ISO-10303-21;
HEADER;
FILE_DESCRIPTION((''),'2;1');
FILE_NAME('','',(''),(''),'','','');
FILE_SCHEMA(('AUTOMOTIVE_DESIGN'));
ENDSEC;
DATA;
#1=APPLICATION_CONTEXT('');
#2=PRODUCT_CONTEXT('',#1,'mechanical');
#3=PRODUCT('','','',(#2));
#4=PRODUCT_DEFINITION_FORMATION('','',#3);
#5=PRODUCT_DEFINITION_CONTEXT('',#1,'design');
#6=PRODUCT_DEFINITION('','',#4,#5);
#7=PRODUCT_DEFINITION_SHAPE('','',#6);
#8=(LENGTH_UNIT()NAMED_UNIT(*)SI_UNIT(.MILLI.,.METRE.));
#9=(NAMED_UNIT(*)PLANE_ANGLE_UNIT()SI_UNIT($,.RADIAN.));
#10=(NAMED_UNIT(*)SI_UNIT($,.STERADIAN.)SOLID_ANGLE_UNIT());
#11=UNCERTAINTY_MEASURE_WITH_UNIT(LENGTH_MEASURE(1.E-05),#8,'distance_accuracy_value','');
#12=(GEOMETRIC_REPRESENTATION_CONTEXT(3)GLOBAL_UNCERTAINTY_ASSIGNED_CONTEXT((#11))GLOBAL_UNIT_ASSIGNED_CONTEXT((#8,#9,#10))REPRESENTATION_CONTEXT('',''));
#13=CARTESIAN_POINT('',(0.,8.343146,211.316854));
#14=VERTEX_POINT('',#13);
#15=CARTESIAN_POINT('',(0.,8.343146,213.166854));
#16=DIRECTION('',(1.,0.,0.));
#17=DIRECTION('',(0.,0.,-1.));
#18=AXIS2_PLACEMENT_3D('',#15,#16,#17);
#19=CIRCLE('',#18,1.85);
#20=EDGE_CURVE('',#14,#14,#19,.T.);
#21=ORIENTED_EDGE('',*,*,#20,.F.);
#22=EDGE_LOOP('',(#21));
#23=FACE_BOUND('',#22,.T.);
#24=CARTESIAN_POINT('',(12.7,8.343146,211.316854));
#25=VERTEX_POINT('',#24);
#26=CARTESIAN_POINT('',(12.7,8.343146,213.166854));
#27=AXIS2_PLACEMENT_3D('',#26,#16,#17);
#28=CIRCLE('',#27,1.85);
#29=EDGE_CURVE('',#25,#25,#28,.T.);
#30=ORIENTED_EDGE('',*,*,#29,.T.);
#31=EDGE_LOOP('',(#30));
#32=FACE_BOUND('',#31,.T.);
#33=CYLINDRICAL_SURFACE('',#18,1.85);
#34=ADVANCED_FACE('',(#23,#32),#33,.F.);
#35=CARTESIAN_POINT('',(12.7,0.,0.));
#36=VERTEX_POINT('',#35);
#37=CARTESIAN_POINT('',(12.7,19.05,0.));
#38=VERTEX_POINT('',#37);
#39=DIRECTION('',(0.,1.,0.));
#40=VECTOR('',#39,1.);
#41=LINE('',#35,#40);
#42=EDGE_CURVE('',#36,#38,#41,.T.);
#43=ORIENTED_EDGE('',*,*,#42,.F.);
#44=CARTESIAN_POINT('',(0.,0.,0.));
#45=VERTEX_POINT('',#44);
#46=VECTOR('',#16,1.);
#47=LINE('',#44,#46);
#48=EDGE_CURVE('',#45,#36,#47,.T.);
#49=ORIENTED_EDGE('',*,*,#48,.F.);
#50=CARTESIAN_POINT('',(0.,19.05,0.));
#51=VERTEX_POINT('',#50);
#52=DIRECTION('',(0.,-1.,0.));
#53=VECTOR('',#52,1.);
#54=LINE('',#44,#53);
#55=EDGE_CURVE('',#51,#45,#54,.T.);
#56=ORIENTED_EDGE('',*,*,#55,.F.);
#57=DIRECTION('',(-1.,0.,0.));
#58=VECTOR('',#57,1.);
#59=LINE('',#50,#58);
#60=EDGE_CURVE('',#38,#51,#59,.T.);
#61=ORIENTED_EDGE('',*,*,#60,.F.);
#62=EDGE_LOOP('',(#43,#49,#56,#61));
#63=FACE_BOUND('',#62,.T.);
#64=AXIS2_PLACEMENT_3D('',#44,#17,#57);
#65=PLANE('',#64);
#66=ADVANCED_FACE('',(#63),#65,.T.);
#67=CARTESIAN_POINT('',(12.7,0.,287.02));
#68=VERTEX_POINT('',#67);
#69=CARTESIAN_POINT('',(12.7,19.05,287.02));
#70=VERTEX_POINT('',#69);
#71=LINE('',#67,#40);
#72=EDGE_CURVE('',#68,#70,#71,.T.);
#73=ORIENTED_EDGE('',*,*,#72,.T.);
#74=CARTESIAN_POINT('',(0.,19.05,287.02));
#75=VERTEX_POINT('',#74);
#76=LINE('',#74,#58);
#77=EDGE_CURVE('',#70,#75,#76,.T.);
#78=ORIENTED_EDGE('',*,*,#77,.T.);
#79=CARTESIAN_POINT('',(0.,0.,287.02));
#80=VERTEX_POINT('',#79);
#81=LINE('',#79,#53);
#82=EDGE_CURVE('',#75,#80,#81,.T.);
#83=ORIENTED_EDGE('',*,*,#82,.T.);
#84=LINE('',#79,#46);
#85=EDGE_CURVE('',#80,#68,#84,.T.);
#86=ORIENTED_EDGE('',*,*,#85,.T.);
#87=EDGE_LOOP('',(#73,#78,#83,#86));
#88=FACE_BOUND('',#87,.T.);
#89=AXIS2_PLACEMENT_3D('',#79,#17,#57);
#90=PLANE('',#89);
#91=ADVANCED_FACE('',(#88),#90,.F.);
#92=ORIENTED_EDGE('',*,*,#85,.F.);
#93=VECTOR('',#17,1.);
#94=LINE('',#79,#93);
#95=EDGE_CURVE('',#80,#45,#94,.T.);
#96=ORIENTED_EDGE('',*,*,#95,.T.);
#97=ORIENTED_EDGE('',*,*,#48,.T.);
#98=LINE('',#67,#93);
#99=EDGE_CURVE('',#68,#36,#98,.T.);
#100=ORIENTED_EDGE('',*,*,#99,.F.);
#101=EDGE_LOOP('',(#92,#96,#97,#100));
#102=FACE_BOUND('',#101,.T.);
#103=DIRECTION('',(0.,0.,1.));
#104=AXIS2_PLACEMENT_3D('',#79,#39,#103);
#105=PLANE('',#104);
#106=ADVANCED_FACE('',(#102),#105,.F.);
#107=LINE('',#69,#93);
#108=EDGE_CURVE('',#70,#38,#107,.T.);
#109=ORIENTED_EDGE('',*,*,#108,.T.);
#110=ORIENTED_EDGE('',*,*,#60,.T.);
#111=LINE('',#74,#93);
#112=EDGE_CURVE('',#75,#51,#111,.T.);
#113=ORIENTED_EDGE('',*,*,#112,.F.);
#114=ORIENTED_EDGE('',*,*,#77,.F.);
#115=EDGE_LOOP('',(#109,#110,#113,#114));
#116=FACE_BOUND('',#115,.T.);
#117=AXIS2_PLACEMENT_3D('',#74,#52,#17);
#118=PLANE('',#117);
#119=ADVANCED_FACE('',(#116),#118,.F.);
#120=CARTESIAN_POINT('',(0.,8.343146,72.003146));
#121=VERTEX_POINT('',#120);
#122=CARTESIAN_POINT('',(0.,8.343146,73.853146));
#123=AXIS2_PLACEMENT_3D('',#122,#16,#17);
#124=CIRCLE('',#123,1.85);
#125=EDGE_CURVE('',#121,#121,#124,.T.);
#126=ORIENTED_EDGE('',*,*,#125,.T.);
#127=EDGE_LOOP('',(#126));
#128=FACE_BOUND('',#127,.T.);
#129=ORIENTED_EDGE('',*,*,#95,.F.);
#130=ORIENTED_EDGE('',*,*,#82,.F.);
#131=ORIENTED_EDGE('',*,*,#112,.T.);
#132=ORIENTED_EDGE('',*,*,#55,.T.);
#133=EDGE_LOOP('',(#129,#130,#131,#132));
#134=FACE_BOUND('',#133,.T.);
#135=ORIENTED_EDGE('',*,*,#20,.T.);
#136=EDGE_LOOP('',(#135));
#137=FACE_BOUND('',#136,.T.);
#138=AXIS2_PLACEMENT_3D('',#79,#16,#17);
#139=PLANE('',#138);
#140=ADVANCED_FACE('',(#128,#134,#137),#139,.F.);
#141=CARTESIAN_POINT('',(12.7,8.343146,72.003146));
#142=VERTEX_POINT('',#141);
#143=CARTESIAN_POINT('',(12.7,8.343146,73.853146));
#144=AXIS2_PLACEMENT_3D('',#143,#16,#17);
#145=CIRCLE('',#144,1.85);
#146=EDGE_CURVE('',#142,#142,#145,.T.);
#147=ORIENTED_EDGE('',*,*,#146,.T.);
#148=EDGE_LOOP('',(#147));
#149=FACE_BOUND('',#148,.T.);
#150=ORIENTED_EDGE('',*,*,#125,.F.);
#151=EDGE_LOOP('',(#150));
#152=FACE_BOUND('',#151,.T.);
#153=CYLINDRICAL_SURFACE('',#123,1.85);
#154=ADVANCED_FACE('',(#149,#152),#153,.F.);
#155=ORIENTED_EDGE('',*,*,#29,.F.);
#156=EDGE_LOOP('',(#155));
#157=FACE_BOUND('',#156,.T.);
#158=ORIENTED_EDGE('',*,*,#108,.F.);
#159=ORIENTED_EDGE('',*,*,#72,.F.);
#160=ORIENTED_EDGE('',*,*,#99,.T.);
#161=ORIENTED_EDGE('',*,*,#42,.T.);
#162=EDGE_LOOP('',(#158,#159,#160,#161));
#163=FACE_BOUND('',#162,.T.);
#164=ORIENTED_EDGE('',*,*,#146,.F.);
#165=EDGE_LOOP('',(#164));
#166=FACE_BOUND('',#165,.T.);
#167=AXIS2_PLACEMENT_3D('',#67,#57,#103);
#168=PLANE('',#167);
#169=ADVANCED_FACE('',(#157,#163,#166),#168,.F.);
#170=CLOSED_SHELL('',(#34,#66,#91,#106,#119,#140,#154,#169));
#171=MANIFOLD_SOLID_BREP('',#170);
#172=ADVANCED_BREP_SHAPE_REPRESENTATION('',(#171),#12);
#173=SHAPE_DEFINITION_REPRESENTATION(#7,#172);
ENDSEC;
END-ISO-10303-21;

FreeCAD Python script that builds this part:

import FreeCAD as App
import Part
import Sketcher
from FreeCAD import Vector
Q = App.Units.Quantity


def add_polygon(sketch, points):
    """Adds a closed chain of lines whose ends are joined by coincident constraints."""
    first, n = sketch.GeometryCount, len(points)
    for a, b in zip(points, points[1:] + points[:1]):
        sketch.addGeometry(Part.LineSegment(App.Vector(*a, 0), App.Vector(*b, 0)), False)
    for i in range(n):
        sketch.addConstraint(Sketcher.Constraint("Coincident", first + i, 2, first + (i + 1) % n, 1))

doc = App.newDocument("Part")
body = doc.addObject("PartDesign::Body", "Body")

sketch1 = doc.addObject("Sketcher::SketchObject", "Sketch")
body.addObject(sketch1)
sketch1.AttachmentSupport = (doc.XY_Plane, [""])
sketch1.MapMode = "FlatFace"
add_polygon(sketch1, [(0, 19.05), (0, 0), (12.7, 0), (12.7, 19.05)])
sketch1.addConstraint(Sketcher.Constraint("Vertical", 0))
sketch1.addConstraint(Sketcher.Constraint("Horizontal", 1))
sketch1.addConstraint(Sketcher.Constraint("Vertical", 2))
sketch1.addConstraint(Sketcher.Constraint("Horizontal", 3))
sketch1.addConstraint(Sketcher.Constraint("Coincident", 0, 2, -1, 1))
sketch1.addConstraint(Sketcher.Constraint("DistanceX", 1, 1, 1, 2, Q("0.5 in")))
sketch1.addConstraint(Sketcher.Constraint("DistanceY", 0, 2, 0, 1, Q("0.75 in")))
pad1 = doc.addObject("PartDesign::Pad", "Pad")
body.addObject(pad1)
pad1.Profile = sketch1
pad1.Length = Q("11.3 in")

sketch2 = doc.addObject("Sketcher::SketchObject", "Sketch001")
body.addObject(sketch2)
sketch2.AttachmentSupport = (doc.YZ_Plane, [""])
sketch2.MapMode = "FlatFace"
sketch2.AttachmentOffset = App.Placement(Vector(0, 0, 0.5 * 25.4), App.Rotation())
sketch2.addGeometry(Part.Circle(Vector(8.343146, 73.853146, 0), Vector(0, 0, 1), 1.85), False)
sketch2.addGeometry(Part.Circle(Vector(8.343146, 213.166854, 0), Vector(0, 0, 1), 1.85), False)
sketch2.addConstraint(Sketcher.Constraint("Equal", 0, 1))
sketch2.addConstraint(Sketcher.Constraint("Vertical", 0, 3, 1, 3))
sketch2.addConstraint(Sketcher.Constraint("Diameter", 0, 3.7))
sketch2.addConstraint(Sketcher.Constraint("DistanceY", 0, 3, 1, 3, 139.313708))
sketch2.addConstraint(Sketcher.Constraint("DistanceX", -1, 1, 0, 3, 8.343146))
sketch2.addConstraint(Sketcher.Constraint("DistanceY", -1, 1, 0, 3, 73.853146))
pocket1 = doc.addObject("PartDesign::Pocket", "Pocket")
body.addObject(pocket1)
pocket1.Profile = sketch2
pocket1.Type = "ThroughAll"

doc.recompute()
